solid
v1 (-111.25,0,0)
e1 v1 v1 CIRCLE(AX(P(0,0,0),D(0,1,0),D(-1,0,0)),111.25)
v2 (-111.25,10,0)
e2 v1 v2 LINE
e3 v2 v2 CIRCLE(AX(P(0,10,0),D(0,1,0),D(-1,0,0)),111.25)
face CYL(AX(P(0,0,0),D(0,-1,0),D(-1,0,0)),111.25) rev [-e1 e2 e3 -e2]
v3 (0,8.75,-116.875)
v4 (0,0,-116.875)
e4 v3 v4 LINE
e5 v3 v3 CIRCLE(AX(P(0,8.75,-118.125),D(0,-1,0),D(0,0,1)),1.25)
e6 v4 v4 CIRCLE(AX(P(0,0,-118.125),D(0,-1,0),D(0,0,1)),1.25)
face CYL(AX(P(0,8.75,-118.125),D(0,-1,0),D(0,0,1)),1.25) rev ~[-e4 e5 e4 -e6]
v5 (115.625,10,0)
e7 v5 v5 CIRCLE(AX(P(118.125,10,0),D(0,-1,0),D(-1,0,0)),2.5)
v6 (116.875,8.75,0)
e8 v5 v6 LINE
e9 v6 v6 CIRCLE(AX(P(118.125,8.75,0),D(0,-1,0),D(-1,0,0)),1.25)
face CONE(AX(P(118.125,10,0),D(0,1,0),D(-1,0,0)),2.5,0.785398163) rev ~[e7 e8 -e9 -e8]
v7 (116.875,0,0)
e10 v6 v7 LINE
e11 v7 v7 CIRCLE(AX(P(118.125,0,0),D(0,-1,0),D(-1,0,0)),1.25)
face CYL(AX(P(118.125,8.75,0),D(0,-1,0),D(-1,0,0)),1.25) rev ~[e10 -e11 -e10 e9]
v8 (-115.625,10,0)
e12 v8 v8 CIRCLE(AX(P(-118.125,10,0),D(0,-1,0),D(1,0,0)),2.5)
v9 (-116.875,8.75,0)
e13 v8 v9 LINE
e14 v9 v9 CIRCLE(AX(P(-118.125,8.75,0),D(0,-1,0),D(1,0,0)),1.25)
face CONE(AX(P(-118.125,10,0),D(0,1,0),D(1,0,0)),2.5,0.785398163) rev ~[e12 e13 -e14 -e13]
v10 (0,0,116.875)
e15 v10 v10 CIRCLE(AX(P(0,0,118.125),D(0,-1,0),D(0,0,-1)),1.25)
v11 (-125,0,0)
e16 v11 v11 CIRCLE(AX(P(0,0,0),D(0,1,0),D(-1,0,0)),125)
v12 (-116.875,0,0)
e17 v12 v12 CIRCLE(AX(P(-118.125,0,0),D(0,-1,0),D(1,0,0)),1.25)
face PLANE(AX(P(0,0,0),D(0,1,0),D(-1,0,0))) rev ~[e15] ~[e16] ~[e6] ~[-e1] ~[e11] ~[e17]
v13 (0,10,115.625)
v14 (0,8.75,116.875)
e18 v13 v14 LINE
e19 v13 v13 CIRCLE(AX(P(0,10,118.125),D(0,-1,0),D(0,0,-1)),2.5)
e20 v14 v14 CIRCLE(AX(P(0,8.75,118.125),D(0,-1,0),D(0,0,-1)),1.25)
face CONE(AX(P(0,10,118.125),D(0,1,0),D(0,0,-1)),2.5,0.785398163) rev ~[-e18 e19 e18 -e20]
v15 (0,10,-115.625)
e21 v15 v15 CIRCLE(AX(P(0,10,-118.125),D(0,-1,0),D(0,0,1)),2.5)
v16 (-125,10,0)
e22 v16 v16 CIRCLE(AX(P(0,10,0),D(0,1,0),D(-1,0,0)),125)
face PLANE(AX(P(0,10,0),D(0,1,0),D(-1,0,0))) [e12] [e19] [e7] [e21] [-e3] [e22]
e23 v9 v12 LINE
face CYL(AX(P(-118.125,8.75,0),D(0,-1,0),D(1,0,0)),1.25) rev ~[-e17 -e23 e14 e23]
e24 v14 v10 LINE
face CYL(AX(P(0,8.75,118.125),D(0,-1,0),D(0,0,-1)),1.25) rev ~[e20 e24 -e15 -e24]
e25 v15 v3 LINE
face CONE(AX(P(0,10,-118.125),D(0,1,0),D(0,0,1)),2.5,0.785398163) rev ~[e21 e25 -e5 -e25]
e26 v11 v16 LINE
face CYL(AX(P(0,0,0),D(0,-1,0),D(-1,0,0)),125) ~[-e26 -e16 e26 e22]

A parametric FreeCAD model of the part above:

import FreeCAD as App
import Part
import Sketcher

V = App.Vector

doc = App.newDocument("Part")
body = doc.addObject("PartDesign::Body", "Body")

# Sketch on XZ plane
sketch1 = doc.addObject("Sketcher::SketchObject", "Sketch")
body.addObject(sketch1)
sketch1.AttachmentSupport = (doc.XZ_Plane, [""])
sketch1.MapMode = "FlatFace"
sketch1.addGeometry([
    Part.Circle(V(0, 0, 0), V(0, 0, 1), 125),
    Part.Circle(V(0, 0, 0), V(0, 0, 1), 111),
], False)
sketch1.addConstraint([
    Sketcher.Constraint("Coincident", 0, 3, -1, 1),
    Sketcher.Constraint("Coincident", 1, 3, -1, 1),
    Sketcher.Constraint("Diameter", 0, 250.0),
    Sketcher.Constraint("Diameter", 1, 222.5),
])
pad1 = doc.addObject("PartDesign::Pad", "Pad")
body.addObject(pad1)
pad1.Profile = sketch1
pad1.Length = 10
pad1.Reversed = True

# Sketch on XZ plane
sketch2 = doc.addObject("Sketcher::SketchObject", "Sketch001")
body.addObject(sketch2)
sketch2.AttachmentSupport = (doc.XZ_Plane, [""])
sketch2.MapMode = "FlatFace"
sketch2.AttachmentOffset = App.Placement(V(0, 0, -10), App.Rotation())
sketch2.addGeometry(Part.Circle(V(0, -118.1, 0), V(0, 0, 1), 1.2), False)
sketch2.addConstraint([
    Sketcher.Constraint("PointOnObject", 0, 3, -2),
    Sketcher.Constraint("Diameter", 0, 2.5),
    Sketcher.Constraint("DistanceY", 0, 3, -1, 1, 118.125),
])
doc.recompute()
hole = doc.addObject("PartDesign::Hole", "Hole")
body.addObject(hole)
hole.Profile = sketch2
hole.ThreadType = "None"
hole.Diameter = 2.5
hole.DepthType = "ThroughAll"
hole.HoleCutType = "Countersink"
hole.HoleCutDiameter = 5
hole.HoleCutCountersinkAngle = 90
hole.Reversed = True
doc.recompute()

polarpattern = doc.addObject("PartDesign::PolarPattern", "PolarPattern")
body.addObject(polarpattern)
polarpattern.Originals = [hole]
polarpattern.Axis = (doc.Y_Axis, [""])
polarpattern.Angle = 360
polarpattern.Occurrences = 4
body.Tip = polarpattern

doc.recompute()
